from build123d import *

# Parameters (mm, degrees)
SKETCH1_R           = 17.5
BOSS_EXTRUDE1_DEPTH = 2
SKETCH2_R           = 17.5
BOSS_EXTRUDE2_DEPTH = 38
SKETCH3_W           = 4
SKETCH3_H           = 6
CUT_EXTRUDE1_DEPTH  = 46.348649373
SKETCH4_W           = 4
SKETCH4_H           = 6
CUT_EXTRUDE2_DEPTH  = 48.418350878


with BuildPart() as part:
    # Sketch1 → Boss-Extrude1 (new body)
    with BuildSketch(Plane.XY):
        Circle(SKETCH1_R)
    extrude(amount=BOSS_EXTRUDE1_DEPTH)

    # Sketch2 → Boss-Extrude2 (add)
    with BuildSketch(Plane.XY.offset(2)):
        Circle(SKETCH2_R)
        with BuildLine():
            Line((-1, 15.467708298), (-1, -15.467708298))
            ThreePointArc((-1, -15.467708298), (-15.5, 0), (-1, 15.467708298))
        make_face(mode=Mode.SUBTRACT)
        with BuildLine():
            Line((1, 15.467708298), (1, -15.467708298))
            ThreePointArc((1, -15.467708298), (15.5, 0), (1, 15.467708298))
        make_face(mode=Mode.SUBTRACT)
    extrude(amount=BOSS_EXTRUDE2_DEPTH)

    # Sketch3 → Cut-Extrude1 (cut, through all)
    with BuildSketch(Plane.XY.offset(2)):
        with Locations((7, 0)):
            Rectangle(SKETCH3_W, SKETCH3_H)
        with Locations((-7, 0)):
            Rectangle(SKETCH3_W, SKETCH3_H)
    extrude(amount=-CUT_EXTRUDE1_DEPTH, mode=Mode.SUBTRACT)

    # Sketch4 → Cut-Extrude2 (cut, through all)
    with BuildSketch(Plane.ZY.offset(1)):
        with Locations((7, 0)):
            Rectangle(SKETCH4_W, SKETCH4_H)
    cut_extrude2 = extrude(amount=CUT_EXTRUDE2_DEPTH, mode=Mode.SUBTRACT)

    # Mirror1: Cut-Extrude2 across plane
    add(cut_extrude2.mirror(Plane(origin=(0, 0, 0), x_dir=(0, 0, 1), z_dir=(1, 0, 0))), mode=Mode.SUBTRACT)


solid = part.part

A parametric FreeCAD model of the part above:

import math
import FreeCAD as App
import Part
import Sketcher

V = App.Vector
Q = App.Units.Quantity


def add_polygon(sketch, points):
    """Adds a closed chain of lines whose ends are joined by coincident constraints."""
    first, n = sketch.GeometryCount, len(points)
    for a, b in zip(points, points[1:] + points[:1]):
        sketch.addGeometry(Part.LineSegment(App.Vector(*a, 0), App.Vector(*b, 0)), False)
    for i in range(n):
        sketch.addConstraint(Sketcher.Constraint("Coincident", first + i, 2, first + (i + 1) % n, 1))

doc = App.newDocument("Part")
body = doc.addObject("PartDesign::Body", "Body")

# Sketch on XY plane
sketch1 = body.newObject("Sketcher::SketchObject", "Sketch")
sketch1.AttachmentSupport = (doc.getObject("XY_Plane"), [""])
sketch1.MapMode = "FlatFace"
sketch1.addGeometry(Part.Circle(V(0, 0, 0), V(0, 0, 1), 18), False)
sketch1.addConstraint(Sketcher.Constraint("Coincident", 0, 3, -1, 1))
sketch1.addConstraint(Sketcher.Constraint("Diameter", 0, Q("35 mm")))
pad1 = body.newObject("PartDesign::Pad", "Pad")
pad1.Profile = sketch1
pad1.Length = 2

# Sketch on XY plane
sketch2 = body.newObject("Sketcher::SketchObject", "Sketch001")
sketch2.AttachmentSupport = (doc.getObject("XY_Plane"), [""])
sketch2.MapMode = "FlatFace"
sketch2.AttachmentOffset = App.Placement(V(0, 0, 2), App.Rotation())
sketch2.addGeometry(Part.Circle(V(0, 0, 0), V(0, 0, 1), 18), False)
sketch2.addGeometry(Part.ArcOfCircle(Part.Circle(V(0, 0, 0), V(0, 0, 1), 16), math.radians(94), math.radians(266)), False)
sketch2.addGeometry(Part.LineSegment(V(-1, 15, 0), V(-1, -15, 0)), False)
sketch2.addGeometry(Part.LineSegment(V(1, -15, 0), V(1, 15, 0)), False)
sketch2.addGeometry(Part.ArcOfCircle(Part.Circle(V(0, 0, 0), V(0, 0, 1), 16), math.radians(-86), math.radians(86)), False)
sketch2.addConstraint(Sketcher.Constraint("Coincident", 1, 1, 2, 1))
sketch2.addConstraint(Sketcher.Constraint("Coincident", 2, 2, 1, 2))
sketch2.addConstraint(Sketcher.Constraint("Coincident", 3, 1, 4, 1))
sketch2.addConstraint(Sketcher.Constraint("Coincident", 4, 2, 3, 2))
sketch2.addConstraint(Sketcher.Constraint("Vertical", 2))
sketch2.addConstraint(Sketcher.Constraint("Vertical", 3))
sketch2.addConstraint(Sketcher.Constraint("Coincident", 0, 3, -1, 1))
sketch2.addConstraint(Sketcher.Constraint("Coincident", 1, 3, -1, 1))
sketch2.addConstraint(Sketcher.Constraint("Coincident", 4, 3, -1, 1))
sketch2.addConstraint(Sketcher.Constraint("Equal", 1, 4))
sketch2.addConstraint(Sketcher.Constraint("Horizontal", 2, 2, 3, 1))
sketch2.addConstraint(Sketcher.Constraint("Diameter", 0, Q("35 mm")))
sketch2.addConstraint(Sketcher.Constraint("Radius", 1, Q("15.5 mm")))
sketch2.addConstraint(Sketcher.Constraint("DistanceX", 1, 1, -1, 1, Q("1 mm")))
pad2 = body.newObject("PartDesign::Pad", "Pad001")
pad2.Profile = sketch2
pad2.Length = 38

# Sketch on XY plane
sketch3 = body.newObject("Sketcher::SketchObject", "Sketch002")
sketch3.AttachmentSupport = (doc.getObject("XY_Plane"), [""])
sketch3.MapMode = "FlatFace"
sketch3.AttachmentOffset = App.Placement(V(0, 0, 2), App.Rotation())
add_polygon(sketch3, [(5, 3), (5, -3), (9, -3), (9, 3)])  # lines 0-3
add_polygon(sketch3, [(-9, 3), (-9, -3), (-5, -3), (-5, 3)])  # lines 4-7
sketch3.addConstraint(Sketcher.Constraint("Vertical", 0))
sketch3.addConstraint(Sketcher.Constraint("Horizontal", 1))
sketch3.addConstraint(Sketcher.Constraint("Vertical", 2))
sketch3.addConstraint(Sketcher.Constraint("Horizontal", 3))
sketch3.addConstraint(Sketcher.Constraint("Vertical", 4))
sketch3.addConstraint(Sketcher.Constraint("Horizontal", 5))
sketch3.addConstraint(Sketcher.Constraint("Vertical", 6))
sketch3.addConstraint(Sketcher.Constraint("Horizontal", 7))
sketch3.addConstraint(Sketcher.Constraint("Symmetric", 2, 2, 4, 2, -1, 1))
sketch3.addConstraint(Sketcher.Constraint("Symmetric", 0, 2, 6, 2, -1, 1))
sketch3.addConstraint(Sketcher.Constraint("Horizontal", 1, 2, 4, 2))
sketch3.addConstraint(Sketcher.Constraint("DistanceX", 1, 1, 1, 2, Q("4 mm")))
sketch3.addConstraint(Sketcher.Constraint("DistanceY", 0, 2, 0, 1, Q("6 mm")))
sketch3.addConstraint(Sketcher.Constraint("DistanceX", -1, 1, 0, 2, Q("5 mm")))
pocket1 = body.newObject("PartDesign::Pocket", "Pocket")
pocket1.Profile = sketch3
pocket1.Type = "ThroughAll"

# Sketch on YZ plane
sketch4 = body.newObject("Sketcher::SketchObject", "Sketch003")
sketch4.AttachmentSupport = (doc.getObject("YZ_Plane"), [""])
sketch4.MapMode = "FlatFace"
sketch4.AttachmentOffset = App.Placement(V(0, 0, -1), App.Rotation())
add_polygon(sketch4, [(3, 5), (-3, 5), (-3, 9), (3, 9)])  # lines 0-3
sketch4.addConstraint(Sketcher.Constraint("Horizontal", 0))
sketch4.addConstraint(Sketcher.Constraint("Vertical", 1))
sketch4.addConstraint(Sketcher.Constraint("Horizontal", 2))
sketch4.addConstraint(Sketcher.Constraint("Vertical", 3))
sketch4.addConstraint(Sketcher.Constraint("DistanceX", 0, 2, 0, 1, Q("6 mm")))
sketch4.addConstraint(Sketcher.Constraint("DistanceY", 1, 1, 1, 2, Q("4 mm")))
sketch4.addConstraint(Sketcher.Constraint("DistanceX", 0, 2, -1, 1, Q("3 mm")))
sketch4.addConstraint(Sketcher.Constraint("DistanceY", -1, 1, 0, 2, Q("5 mm")))
pocket2 = body.newObject("PartDesign::Pocket", "Pocket001")
pocket2.Profile = sketch4
pocket2.Type = "ThroughAll"
doc.recompute()

mirrored = body.newObject("PartDesign::Mirrored", "Mirrored")
mirrored.Originals = [pocket2]
mirrored.MirrorPlane = (doc.getObject("YZ_Plane"), [""])
body.Tip = mirrored

doc.recompute()
